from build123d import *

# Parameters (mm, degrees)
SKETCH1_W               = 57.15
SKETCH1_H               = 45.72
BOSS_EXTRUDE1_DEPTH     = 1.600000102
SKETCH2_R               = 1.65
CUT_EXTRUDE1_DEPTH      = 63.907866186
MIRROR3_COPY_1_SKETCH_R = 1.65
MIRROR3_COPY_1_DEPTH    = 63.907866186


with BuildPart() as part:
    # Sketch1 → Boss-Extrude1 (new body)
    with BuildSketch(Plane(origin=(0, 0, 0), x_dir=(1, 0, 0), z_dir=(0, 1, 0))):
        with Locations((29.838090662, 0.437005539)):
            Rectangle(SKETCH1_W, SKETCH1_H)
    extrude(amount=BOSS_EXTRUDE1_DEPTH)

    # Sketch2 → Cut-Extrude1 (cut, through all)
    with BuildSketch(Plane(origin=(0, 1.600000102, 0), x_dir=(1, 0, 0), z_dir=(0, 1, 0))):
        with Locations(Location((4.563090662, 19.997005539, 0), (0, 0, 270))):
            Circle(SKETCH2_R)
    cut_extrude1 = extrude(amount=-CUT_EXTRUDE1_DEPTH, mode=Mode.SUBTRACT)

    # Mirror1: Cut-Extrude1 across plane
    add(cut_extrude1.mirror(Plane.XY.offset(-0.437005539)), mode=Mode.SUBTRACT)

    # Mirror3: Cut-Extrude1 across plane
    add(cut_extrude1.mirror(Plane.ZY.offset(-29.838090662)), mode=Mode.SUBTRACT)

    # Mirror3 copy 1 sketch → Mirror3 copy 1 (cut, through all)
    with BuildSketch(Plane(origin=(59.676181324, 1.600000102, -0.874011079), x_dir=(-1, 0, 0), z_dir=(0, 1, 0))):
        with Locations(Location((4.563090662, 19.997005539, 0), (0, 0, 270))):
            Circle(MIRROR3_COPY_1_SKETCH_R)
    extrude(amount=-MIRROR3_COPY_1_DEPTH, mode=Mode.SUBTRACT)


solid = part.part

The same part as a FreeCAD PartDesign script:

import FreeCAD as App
import Part
import Sketcher
from FreeCAD import Vector
Q = App.Units.Quantity

doc = App.newDocument("Part")
params = doc.addObject("Spreadsheet::Sheet", "Params")
for row, (alias, value) in enumerate([
    ("sketch1_width", "57.15 mm"),
    ("sketch1_height", "45.72 mm"),
    ("pad1_length", "1.6 mm"),
    ("sketch2_diameter", "3.3 mm"),
    ("sketch3_diameter", "3.3 mm"),
], start=1):
    params.set(f"A{row}", alias)
    params.set(f"B{row}", "=" + value)
    params.setAlias(f"B{row}", alias)

body = doc.addObject("PartDesign::Body", "Body")

sketch1 = body.newObject("Sketcher::SketchObject", "Sketch")
sketch1.AttachmentSupport = (doc.getObject("XZ_Plane"), [""])
sketch1.MapMode = "FlatFace"
sketch1.addGeometry([
    Part.LineSegment(Vector(1.263091, -23.297006, 0), Vector(1.263091, 22.422994, 0)),
    Part.LineSegment(Vector(1.263091, 22.422994, 0), Vector(58.413091, 22.422994, 0)),
    Part.LineSegment(Vector(58.413091, 22.422994, 0), Vector(58.413091, -23.297006, 0)),
    Part.LineSegment(Vector(58.413091, -23.297006, 0), Vector(1.263091, -23.297006, 0)),
], False)
sketch1.addConstraint([
    Sketcher.Constraint("Coincident", 0, 2, 1, 1),
    Sketcher.Constraint("Coincident", 1, 2, 2, 1),
    Sketcher.Constraint("Coincident", 2, 2, 3, 1),
    Sketcher.Constraint("Coincident", 3, 2, 0, 1),
    Sketcher.Constraint("Vertical", 0),
    Sketcher.Constraint("Horizontal", 1),
    Sketcher.Constraint("Vertical", 2),
    Sketcher.Constraint("Horizontal", 3),
    Sketcher.Constraint("DistanceX", 1, 1, 1, 2, Q("57.15 mm")),
    Sketcher.Constraint("DistanceY", 0, 1, 0, 2, Q("45.72 mm")),
    Sketcher.Constraint("DistanceX", -1, 1, 0, 2, Q("1.263091 mm")),
    Sketcher.Constraint("DistanceY", -1, 1, 0, 2, Q("22.422994 mm")),
])
sketch1.setExpression("Constraints[8]", "Params.sketch1_width")
sketch1.setExpression("Constraints[9]", "Params.sketch1_height")
pad1 = body.newObject("PartDesign::Pad", "Pad")
pad1.Profile = sketch1
pad1.setExpression("Length", "Params.pad1_length")
pad1.Reversed = True

sketch2 = body.newObject("Sketcher::SketchObject", "Sketch001")
sketch2.AttachmentSupport = (doc.getObject("XZ_Plane"), [""])
sketch2.MapMode = "FlatFace"
sketch2.AttachmentOffset = App.Placement(Vector(0, 0, -1.6), App.Rotation())
sketch2.addGeometry(Part.Circle(Vector(4.563091, -19.997006, 0), Vector(0, 0, 1), 1.65), False)
sketch2.addConstraint([
    Sketcher.Constraint("Diameter", 0, Q("3.3 mm")),
    Sketcher.Constraint("DistanceX", -1, 1, 0, 3, Q("4.563091 mm")),
    Sketcher.Constraint("DistanceY", 0, 3, -1, 1, Q("19.997006 mm")),
])
sketch2.setExpression("Constraints[0]", "Params.sketch2_diameter")
pocket1 = body.newObject("PartDesign::Pocket", "Pocket")
pocket1.Profile = sketch2
pocket1.Type = "ThroughAll"
pocket1.Reversed = True
doc.recompute()

datumplane = body.newObject("PartDesign::Plane", "DatumPlane")
datumplane.AttachmentSupport = (doc.getObject("XY_Plane"), [""])
datumplane.MapMode = "FlatFace"
datumplane.AttachmentOffset = App.Placement(Vector(0, 0, -0.437006), App.Rotation())
mirrored = body.newObject("PartDesign::Mirrored", "Mirrored")
mirrored.Originals = [pocket1]
mirrored.MirrorPlane = (datumplane, [""])
body.Tip = mirrored
doc.recompute()

datumplane2 = body.newObject("PartDesign::Plane", "DatumPlane001")
datumplane2.AttachmentSupport = (doc.getObject("YZ_Plane"), [""])
datumplane2.MapMode = "FlatFace"
datumplane2.AttachmentOffset = App.Placement(Vector(0, 0, 29.838091), App.Rotation())
mirrored2 = body.newObject("PartDesign::Mirrored", "Mirrored001")
mirrored2.Originals = [pocket1]
mirrored2.MirrorPlane = (datumplane2, [""])
body.Tip = mirrored2

sketch3 = body.newObject("Sketcher::SketchObject", "Sketch002")
sketch3.AttachmentSupport = (doc.getObject("XZ_Plane"), [""])
sketch3.MapMode = "FlatFace"
sketch3.AttachmentOffset = App.Placement(Vector(0, 0, -1.6), App.Rotation())
sketch3.addGeometry(Part.Circle(Vector(55.113091, 19.122994, 0), Vector(0, 0, 1), 1.65), False)
sketch3.addConstraint([
    Sketcher.Constraint("Diameter", 0, Q("3.3 mm")),
    Sketcher.Constraint("DistanceX", -1, 1, 0, 3, Q("55.113091 mm")),
    Sketcher.Constraint("DistanceY", -1, 1, 0, 3, Q("19.122994 mm")),
])
sketch3.setExpression("Constraints[0]", "Params.sketch3_diameter")
pocket2 = body.newObject("PartDesign::Pocket", "Pocket001")
pocket2.Profile = sketch3
pocket2.Type = "ThroughAll"
pocket2.Reversed = True

doc.recompute()
